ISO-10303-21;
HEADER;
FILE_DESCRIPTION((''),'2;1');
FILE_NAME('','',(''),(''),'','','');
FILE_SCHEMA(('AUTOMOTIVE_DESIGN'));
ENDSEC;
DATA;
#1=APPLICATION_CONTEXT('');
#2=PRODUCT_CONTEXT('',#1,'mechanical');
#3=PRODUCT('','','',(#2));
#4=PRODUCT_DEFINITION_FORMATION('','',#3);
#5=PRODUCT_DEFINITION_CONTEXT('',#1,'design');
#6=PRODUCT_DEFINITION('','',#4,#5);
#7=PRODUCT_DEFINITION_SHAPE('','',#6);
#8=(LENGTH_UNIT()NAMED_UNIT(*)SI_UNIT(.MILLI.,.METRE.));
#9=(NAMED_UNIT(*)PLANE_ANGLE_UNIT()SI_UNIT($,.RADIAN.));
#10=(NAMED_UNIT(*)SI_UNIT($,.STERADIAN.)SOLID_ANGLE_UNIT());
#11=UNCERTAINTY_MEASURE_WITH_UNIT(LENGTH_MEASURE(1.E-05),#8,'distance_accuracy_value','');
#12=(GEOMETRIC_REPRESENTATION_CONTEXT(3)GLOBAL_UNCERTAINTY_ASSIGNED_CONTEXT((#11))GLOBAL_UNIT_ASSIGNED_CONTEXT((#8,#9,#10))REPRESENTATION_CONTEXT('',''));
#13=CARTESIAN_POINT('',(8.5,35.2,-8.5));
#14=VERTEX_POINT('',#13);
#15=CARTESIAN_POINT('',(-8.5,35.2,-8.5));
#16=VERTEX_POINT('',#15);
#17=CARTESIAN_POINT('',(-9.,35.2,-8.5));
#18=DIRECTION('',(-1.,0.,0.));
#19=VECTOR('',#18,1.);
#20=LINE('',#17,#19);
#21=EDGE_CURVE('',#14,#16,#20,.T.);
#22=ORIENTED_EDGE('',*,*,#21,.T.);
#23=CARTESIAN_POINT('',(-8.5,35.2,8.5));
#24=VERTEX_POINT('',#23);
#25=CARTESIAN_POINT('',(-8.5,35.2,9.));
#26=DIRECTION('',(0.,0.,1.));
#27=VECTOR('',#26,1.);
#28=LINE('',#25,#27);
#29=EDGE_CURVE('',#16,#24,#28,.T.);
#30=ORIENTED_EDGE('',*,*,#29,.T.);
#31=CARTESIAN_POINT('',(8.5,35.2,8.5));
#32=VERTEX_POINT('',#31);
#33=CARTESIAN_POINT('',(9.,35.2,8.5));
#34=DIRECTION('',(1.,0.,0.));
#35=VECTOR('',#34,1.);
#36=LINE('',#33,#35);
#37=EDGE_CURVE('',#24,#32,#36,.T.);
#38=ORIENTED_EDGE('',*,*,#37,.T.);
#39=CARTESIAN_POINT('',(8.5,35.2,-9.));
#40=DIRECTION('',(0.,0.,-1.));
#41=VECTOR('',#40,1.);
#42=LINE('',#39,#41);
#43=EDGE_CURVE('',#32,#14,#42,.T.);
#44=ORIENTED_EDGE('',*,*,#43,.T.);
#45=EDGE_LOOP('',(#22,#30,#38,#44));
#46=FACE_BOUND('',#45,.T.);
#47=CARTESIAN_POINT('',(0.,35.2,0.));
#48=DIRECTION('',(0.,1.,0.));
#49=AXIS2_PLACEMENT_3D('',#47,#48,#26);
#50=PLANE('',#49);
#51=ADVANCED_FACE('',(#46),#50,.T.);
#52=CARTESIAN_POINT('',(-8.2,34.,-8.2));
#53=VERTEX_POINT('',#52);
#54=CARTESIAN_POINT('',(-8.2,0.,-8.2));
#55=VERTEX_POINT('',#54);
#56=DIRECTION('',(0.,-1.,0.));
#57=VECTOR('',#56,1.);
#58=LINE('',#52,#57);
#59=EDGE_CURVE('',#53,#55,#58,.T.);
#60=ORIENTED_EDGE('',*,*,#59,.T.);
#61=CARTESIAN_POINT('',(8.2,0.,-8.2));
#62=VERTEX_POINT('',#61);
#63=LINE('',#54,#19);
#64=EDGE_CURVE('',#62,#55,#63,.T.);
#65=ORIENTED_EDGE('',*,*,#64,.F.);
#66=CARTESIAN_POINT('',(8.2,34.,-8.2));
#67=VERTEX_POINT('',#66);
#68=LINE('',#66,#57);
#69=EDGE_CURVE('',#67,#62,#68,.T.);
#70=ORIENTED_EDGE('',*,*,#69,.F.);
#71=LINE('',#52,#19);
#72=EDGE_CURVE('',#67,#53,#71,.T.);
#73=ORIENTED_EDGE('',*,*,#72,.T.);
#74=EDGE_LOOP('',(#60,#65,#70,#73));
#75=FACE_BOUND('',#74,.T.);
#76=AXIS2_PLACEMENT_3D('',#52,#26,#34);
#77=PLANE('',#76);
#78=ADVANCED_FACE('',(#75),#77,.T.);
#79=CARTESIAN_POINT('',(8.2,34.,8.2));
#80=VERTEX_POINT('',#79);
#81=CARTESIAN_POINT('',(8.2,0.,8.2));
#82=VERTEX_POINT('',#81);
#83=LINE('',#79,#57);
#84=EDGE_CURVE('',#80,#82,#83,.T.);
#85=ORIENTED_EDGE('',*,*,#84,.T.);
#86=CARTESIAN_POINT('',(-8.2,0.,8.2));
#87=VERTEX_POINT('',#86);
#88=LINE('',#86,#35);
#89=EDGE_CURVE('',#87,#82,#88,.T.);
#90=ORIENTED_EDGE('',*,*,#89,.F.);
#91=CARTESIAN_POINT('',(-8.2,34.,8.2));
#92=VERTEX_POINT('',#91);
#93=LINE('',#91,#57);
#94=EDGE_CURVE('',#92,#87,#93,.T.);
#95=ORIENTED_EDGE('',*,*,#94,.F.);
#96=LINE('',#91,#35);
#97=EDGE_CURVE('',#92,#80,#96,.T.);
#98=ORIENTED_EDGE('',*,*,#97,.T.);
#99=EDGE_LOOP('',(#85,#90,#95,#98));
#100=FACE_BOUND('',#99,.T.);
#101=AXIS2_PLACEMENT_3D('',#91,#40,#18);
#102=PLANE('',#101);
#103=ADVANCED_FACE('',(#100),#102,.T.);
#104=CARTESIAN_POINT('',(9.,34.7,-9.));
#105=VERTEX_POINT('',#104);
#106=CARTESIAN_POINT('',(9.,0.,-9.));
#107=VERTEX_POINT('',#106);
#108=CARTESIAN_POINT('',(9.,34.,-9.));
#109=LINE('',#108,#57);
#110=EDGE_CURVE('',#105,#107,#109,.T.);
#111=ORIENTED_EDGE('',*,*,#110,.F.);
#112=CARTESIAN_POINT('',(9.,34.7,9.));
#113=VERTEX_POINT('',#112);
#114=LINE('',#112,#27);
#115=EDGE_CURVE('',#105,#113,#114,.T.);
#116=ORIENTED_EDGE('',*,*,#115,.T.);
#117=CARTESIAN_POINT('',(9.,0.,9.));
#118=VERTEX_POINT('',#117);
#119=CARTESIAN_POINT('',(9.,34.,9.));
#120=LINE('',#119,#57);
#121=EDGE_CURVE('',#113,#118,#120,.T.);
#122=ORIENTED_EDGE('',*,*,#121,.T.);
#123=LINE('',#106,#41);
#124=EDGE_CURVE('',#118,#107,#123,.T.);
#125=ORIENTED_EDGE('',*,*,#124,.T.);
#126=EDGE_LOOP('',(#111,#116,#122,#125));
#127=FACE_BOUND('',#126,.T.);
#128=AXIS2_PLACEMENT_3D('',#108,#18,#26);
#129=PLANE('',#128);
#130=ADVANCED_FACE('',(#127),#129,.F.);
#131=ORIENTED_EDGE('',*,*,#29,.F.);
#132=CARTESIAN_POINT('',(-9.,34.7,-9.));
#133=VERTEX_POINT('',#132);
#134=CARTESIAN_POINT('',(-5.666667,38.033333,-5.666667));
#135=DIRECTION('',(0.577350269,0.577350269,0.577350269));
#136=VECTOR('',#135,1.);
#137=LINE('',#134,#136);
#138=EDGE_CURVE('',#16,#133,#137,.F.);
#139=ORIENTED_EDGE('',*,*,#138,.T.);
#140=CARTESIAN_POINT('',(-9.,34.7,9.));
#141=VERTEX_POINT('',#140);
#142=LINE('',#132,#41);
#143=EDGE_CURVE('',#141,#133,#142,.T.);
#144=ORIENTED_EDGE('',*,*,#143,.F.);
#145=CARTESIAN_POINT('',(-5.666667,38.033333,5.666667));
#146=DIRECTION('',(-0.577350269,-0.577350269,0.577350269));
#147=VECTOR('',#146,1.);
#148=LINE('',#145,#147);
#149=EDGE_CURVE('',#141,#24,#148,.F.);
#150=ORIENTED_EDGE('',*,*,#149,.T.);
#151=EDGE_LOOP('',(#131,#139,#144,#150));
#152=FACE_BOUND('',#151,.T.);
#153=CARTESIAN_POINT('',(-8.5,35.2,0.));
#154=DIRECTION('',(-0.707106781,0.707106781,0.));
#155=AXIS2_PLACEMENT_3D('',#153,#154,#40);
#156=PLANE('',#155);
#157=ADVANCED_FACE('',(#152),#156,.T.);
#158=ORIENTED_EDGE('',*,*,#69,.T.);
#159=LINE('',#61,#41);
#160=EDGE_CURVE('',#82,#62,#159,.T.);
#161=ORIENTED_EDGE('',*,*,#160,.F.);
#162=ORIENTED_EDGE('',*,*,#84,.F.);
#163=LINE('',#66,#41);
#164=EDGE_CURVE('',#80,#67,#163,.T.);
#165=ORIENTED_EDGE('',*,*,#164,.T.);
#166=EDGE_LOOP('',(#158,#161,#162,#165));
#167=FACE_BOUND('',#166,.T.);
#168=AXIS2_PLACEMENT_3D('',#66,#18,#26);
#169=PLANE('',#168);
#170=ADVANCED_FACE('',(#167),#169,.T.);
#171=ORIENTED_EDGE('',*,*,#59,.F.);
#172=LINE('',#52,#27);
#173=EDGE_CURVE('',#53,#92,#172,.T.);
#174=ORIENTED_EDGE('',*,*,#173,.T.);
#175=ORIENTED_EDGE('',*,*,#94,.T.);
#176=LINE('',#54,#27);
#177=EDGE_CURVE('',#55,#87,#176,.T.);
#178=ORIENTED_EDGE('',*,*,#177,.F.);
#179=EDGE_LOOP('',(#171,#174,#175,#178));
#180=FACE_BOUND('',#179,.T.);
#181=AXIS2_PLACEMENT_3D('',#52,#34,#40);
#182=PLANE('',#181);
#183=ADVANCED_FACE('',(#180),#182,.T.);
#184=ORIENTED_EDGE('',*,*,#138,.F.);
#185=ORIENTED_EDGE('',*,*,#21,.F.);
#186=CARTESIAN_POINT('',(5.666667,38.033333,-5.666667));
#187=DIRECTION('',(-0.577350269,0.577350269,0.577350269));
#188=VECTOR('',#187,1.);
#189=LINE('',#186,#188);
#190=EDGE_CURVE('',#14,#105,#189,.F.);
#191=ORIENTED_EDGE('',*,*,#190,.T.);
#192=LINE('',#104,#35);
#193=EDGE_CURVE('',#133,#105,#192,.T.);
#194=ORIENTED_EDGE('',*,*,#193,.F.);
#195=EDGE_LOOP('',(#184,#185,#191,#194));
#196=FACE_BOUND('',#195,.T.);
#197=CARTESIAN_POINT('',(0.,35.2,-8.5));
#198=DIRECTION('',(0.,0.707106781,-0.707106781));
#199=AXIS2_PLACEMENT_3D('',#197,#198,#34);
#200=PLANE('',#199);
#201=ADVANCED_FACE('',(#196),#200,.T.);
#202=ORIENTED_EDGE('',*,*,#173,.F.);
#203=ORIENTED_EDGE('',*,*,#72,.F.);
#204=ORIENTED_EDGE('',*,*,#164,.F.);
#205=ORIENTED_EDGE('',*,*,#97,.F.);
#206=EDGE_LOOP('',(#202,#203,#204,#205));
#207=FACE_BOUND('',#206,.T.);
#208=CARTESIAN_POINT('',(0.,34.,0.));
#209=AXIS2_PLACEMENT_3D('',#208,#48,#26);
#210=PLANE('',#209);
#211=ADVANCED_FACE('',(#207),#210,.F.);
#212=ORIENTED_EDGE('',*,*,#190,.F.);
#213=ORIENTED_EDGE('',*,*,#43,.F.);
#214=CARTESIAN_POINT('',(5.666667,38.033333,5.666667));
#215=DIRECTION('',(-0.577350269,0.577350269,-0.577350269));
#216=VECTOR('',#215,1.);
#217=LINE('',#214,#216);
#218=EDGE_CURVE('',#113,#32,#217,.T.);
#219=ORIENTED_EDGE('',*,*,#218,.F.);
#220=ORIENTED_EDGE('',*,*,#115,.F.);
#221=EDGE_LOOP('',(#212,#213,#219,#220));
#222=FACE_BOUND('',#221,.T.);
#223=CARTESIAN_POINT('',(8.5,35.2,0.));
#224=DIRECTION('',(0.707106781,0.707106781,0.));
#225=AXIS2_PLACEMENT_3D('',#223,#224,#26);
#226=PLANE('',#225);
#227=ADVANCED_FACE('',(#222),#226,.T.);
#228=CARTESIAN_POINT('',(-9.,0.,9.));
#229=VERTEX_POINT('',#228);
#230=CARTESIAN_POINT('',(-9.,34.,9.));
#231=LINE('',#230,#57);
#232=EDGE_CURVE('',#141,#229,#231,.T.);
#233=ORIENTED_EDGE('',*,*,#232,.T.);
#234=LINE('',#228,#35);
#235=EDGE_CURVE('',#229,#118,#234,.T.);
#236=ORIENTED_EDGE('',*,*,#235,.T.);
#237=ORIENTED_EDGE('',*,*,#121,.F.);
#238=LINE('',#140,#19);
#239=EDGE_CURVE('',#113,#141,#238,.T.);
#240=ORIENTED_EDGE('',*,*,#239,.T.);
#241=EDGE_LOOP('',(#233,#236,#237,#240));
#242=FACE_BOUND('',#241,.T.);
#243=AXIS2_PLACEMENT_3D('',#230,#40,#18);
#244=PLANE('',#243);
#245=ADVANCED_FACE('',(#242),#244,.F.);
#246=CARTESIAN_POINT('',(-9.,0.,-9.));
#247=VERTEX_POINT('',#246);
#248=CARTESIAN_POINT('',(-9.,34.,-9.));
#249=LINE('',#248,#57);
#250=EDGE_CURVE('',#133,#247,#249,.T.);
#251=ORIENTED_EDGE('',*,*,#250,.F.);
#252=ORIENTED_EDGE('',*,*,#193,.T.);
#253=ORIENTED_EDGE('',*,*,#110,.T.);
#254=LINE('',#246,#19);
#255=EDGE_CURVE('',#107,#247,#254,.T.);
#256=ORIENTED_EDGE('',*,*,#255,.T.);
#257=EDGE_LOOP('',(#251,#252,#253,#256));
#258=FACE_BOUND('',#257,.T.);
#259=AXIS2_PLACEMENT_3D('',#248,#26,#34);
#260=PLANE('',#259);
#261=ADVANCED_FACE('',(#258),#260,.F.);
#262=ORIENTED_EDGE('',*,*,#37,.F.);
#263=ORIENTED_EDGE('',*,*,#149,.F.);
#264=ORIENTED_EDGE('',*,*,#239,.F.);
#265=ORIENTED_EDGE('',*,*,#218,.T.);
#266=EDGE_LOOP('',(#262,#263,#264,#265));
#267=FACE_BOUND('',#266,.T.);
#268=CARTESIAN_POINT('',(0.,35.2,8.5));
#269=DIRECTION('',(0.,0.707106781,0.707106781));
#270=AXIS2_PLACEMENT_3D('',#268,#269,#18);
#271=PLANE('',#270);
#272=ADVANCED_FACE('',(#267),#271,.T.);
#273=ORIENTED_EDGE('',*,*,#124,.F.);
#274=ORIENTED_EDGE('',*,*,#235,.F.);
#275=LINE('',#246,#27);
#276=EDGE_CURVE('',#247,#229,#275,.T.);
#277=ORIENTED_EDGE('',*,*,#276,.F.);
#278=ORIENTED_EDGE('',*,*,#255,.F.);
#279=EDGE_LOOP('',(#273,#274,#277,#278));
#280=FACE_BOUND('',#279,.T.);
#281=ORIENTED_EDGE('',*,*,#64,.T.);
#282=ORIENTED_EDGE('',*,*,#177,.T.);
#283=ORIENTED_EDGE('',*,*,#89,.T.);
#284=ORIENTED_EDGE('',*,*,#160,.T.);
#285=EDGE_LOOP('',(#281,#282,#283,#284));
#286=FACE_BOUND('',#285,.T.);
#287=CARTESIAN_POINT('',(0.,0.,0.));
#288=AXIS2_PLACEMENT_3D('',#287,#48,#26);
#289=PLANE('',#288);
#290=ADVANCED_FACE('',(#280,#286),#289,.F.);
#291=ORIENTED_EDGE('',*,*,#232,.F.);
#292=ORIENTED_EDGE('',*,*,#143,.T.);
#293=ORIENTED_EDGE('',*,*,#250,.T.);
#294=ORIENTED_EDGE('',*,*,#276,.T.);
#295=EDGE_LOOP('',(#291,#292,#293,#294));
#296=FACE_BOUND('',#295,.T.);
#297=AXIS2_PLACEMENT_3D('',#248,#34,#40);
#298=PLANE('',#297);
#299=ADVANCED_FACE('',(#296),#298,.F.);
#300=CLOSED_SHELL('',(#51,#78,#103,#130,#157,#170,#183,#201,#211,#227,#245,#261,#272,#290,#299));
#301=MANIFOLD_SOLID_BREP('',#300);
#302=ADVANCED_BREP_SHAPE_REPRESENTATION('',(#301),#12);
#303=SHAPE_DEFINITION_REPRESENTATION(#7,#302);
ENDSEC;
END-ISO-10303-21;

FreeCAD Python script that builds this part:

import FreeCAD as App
import Part
import Sketcher


def edges_at(feature, points):
    """Names of the edges that pass closest to the given points."""
    edges = feature.Shape.Edges
    near = lambda p: min(range(len(edges)), key=lambda i: edges[i].distToShape(Part.Vertex(*p))[0])
    return sorted({f"Edge{near(p) + 1}" for p in points})

doc = App.newDocument("Part")
body = doc.addObject("PartDesign::Body", "Body")

sketch1 = body.newObject("Sketcher::SketchObject", "Sketch")
sketch1.AttachmentSupport = (doc.getObject("XZ_Plane"), [""])
sketch1.MapMode = "FlatFace"
sketch1.addGeometry([
    Part.LineSegment(App.Vector(-9, -9, 0), App.Vector(-9, 9, 0)),
    Part.LineSegment(App.Vector(-9, 9, 0), App.Vector(9, 9, 0)),
    Part.LineSegment(App.Vector(9, 9, 0), App.Vector(9, -9, 0)),
    Part.LineSegment(App.Vector(9, -9, 0), App.Vector(-9, -9, 0)),
    Part.LineSegment(App.Vector(8, 8, 0), App.Vector(-8, 8, 0)),
    Part.LineSegment(App.Vector(-8, 8, 0), App.Vector(-8, -8, 0)),
    Part.LineSegment(App.Vector(-8, -8, 0), App.Vector(8, -8, 0)),
    Part.LineSegment(App.Vector(8, -8, 0), App.Vector(8, 8, 0)),
], False)
sketch1.addConstraint([
    Sketcher.Constraint("Coincident", 0, 2, 1, 1),
    Sketcher.Constraint("Coincident", 1, 2, 2, 1),
    Sketcher.Constraint("Coincident", 2, 2, 3, 1),
    Sketcher.Constraint("Coincident", 3, 2, 0, 1),
    Sketcher.Constraint("Coincident", 4, 2, 5, 1),
    Sketcher.Constraint("Coincident", 5, 2, 6, 1),
    Sketcher.Constraint("Coincident", 6, 2, 7, 1),
    Sketcher.Constraint("Coincident", 7, 2, 4, 1),
    Sketcher.Constraint("Vertical", 0),
    Sketcher.Constraint("Horizontal", 1),
    Sketcher.Constraint("Vertical", 2),
    Sketcher.Constraint("Horizontal", 3),
    Sketcher.Constraint("Horizontal", 4),
    Sketcher.Constraint("Vertical", 5),
    Sketcher.Constraint("Horizontal", 6),
    Sketcher.Constraint("Vertical", 7),
    Sketcher.Constraint("Symmetric", 0, 2, 2, 2, -1, 1),
    Sketcher.Constraint("Symmetric", 4, 2, 6, 2, -1, 1),
    Sketcher.Constraint("Equal", 3, 0),
    Sketcher.Constraint("Equal", 6, 5),
    Sketcher.Constraint("DistanceX", 1, 1, 1, 2, 18.0),
    Sketcher.Constraint("DistanceX", 4, 2, 4, 1, 16.4),
])
pad1 = body.newObject("PartDesign::Pad", "Pad")
pad1.Profile = sketch1
pad1.Length = 34
pad1.Reversed = True

sketch2 = body.newObject("Sketcher::SketchObject", "Sketch001")
sketch2.AttachmentSupport = (doc.getObject("XZ_Plane"), [""])
sketch2.MapMode = "FlatFace"
sketch2.AttachmentOffset = App.Placement(App.Vector(0, 0, -34), App.Rotation())
sketch2.addGeometry([
    Part.LineSegment(App.Vector(-9, -9, 0), App.Vector(-9, 9, 0)),
    Part.LineSegment(App.Vector(-9, 9, 0), App.Vector(9, 9, 0)),
    Part.LineSegment(App.Vector(9, 9, 0), App.Vector(9, -9, 0)),
    Part.LineSegment(App.Vector(9, -9, 0), App.Vector(-9, -9, 0)),
], False)
sketch2.addConstraint([
    Sketcher.Constraint("Coincident", 0, 2, 1, 1),
    Sketcher.Constraint("Coincident", 1, 2, 2, 1),
    Sketcher.Constraint("Coincident", 2, 2, 3, 1),
    Sketcher.Constraint("Coincident", 3, 2, 0, 1),
    Sketcher.Constraint("Vertical", 0),
    Sketcher.Constraint("Horizontal", 1),
    Sketcher.Constraint("Vertical", 2),
    Sketcher.Constraint("Horizontal", 3),
    Sketcher.Constraint("Symmetric", 0, 2, 2, 2, -1, 1),
    Sketcher.Constraint("Equal", 3, 0),
    Sketcher.Constraint("DistanceX", 1, 1, 1, 2, 18.0),
])
pad2 = body.newObject("PartDesign::Pad", "Pad001")
pad2.Profile = sketch2
pad2.Length = 1.2
pad2.Reversed = True
doc.recompute()

chamfer = body.newObject("PartDesign::Chamfer", "Chamfer")
chamfer.Base = (pad2, edges_at(pad2, [
    (-9, 35.2, 0),
    (0, 35.2, 9),
    (9, 35.2, 0),
    (0, 35.2, -9),
]))
chamfer.Size = 0.5

doc.recompute()
